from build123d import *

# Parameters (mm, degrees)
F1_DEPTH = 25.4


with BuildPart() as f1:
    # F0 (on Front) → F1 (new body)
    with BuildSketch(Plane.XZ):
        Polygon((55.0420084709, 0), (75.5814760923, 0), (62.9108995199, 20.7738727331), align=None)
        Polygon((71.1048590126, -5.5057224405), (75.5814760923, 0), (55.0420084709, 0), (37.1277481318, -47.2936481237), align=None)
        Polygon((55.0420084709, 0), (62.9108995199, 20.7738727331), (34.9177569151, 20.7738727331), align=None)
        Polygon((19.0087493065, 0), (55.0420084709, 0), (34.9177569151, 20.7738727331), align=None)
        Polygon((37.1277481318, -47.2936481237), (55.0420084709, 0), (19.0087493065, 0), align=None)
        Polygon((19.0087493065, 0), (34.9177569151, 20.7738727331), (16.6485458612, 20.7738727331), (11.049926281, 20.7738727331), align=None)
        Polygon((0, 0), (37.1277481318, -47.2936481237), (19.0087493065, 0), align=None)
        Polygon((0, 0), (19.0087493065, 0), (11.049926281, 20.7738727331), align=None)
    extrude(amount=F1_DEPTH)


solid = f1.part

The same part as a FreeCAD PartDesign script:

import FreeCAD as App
import Part
import Sketcher
from FreeCAD import Vector
Q = App.Units.Quantity


def add_polygon(sketch, points):
    """Adds a closed chain of lines whose ends are joined by coincident constraints."""
    first, n = sketch.GeometryCount, len(points)
    for a, b in zip(points, points[1:] + points[:1]):
        sketch.addGeometry(Part.LineSegment(App.Vector(*a, 0), App.Vector(*b, 0)), False)
    for i in range(n):
        sketch.addConstraint(Sketcher.Constraint("Coincident", first + i, 2, first + (i + 1) % n, 1))

doc = App.newDocument("Part")
body = doc.addObject("PartDesign::Body", "Body")

# Sketch on XZ plane
sketch1 = body.newObject("Sketcher::SketchObject", "Sketch")
sketch1.AttachmentSupport = (doc.getObject("XZ_Plane"), [""])
sketch1.MapMode = "FlatFace"
add_polygon(sketch1, [(76, 0), (63, 21), (11, 21), (0, 0), (37, -47), (71, -6)])  # lines 0-5
sketch1.addConstraint(Sketcher.Constraint("Horizontal", 1))
sketch1.addConstraint(Sketcher.Constraint("Coincident", 2, 2, -1, 1))
sketch1.addConstraint(Sketcher.Constraint("PointOnObject", 5, 2, -1))
sketch1.addConstraint(Sketcher.Constraint("Parallel", 4, 5))
sketch1.addConstraint(Sketcher.Constraint("DistanceX", -1, 1, 0, 2, Q("62.9109 mm")))
sketch1.addConstraint(Sketcher.Constraint("Distance", 0, Q("24.33305 mm")))
sketch1.addConstraint(Sketcher.Constraint("Distance", 3, Q("60.126191 mm")))
sketch1.addConstraint(Sketcher.Constraint("Distance", 5, Q("7.09599 mm")))
sketch1.addConstraint(Sketcher.Constraint("DistanceX", 1, 2, 1, 1, Q("51.860973 mm")))
sketch1.addConstraint(Sketcher.Constraint("DistanceX", -1, 1, 3, 2, Q("37.127748 mm")))
sketch1.addConstraint(Sketcher.Constraint("DistanceX", -1, 1, 4, 2, Q("71.104859 mm")))
pad1 = body.newObject("PartDesign::Pad", "Pad")
pad1.Profile = sketch1
pad1.Length = Q("1 in")

doc.recompute()
